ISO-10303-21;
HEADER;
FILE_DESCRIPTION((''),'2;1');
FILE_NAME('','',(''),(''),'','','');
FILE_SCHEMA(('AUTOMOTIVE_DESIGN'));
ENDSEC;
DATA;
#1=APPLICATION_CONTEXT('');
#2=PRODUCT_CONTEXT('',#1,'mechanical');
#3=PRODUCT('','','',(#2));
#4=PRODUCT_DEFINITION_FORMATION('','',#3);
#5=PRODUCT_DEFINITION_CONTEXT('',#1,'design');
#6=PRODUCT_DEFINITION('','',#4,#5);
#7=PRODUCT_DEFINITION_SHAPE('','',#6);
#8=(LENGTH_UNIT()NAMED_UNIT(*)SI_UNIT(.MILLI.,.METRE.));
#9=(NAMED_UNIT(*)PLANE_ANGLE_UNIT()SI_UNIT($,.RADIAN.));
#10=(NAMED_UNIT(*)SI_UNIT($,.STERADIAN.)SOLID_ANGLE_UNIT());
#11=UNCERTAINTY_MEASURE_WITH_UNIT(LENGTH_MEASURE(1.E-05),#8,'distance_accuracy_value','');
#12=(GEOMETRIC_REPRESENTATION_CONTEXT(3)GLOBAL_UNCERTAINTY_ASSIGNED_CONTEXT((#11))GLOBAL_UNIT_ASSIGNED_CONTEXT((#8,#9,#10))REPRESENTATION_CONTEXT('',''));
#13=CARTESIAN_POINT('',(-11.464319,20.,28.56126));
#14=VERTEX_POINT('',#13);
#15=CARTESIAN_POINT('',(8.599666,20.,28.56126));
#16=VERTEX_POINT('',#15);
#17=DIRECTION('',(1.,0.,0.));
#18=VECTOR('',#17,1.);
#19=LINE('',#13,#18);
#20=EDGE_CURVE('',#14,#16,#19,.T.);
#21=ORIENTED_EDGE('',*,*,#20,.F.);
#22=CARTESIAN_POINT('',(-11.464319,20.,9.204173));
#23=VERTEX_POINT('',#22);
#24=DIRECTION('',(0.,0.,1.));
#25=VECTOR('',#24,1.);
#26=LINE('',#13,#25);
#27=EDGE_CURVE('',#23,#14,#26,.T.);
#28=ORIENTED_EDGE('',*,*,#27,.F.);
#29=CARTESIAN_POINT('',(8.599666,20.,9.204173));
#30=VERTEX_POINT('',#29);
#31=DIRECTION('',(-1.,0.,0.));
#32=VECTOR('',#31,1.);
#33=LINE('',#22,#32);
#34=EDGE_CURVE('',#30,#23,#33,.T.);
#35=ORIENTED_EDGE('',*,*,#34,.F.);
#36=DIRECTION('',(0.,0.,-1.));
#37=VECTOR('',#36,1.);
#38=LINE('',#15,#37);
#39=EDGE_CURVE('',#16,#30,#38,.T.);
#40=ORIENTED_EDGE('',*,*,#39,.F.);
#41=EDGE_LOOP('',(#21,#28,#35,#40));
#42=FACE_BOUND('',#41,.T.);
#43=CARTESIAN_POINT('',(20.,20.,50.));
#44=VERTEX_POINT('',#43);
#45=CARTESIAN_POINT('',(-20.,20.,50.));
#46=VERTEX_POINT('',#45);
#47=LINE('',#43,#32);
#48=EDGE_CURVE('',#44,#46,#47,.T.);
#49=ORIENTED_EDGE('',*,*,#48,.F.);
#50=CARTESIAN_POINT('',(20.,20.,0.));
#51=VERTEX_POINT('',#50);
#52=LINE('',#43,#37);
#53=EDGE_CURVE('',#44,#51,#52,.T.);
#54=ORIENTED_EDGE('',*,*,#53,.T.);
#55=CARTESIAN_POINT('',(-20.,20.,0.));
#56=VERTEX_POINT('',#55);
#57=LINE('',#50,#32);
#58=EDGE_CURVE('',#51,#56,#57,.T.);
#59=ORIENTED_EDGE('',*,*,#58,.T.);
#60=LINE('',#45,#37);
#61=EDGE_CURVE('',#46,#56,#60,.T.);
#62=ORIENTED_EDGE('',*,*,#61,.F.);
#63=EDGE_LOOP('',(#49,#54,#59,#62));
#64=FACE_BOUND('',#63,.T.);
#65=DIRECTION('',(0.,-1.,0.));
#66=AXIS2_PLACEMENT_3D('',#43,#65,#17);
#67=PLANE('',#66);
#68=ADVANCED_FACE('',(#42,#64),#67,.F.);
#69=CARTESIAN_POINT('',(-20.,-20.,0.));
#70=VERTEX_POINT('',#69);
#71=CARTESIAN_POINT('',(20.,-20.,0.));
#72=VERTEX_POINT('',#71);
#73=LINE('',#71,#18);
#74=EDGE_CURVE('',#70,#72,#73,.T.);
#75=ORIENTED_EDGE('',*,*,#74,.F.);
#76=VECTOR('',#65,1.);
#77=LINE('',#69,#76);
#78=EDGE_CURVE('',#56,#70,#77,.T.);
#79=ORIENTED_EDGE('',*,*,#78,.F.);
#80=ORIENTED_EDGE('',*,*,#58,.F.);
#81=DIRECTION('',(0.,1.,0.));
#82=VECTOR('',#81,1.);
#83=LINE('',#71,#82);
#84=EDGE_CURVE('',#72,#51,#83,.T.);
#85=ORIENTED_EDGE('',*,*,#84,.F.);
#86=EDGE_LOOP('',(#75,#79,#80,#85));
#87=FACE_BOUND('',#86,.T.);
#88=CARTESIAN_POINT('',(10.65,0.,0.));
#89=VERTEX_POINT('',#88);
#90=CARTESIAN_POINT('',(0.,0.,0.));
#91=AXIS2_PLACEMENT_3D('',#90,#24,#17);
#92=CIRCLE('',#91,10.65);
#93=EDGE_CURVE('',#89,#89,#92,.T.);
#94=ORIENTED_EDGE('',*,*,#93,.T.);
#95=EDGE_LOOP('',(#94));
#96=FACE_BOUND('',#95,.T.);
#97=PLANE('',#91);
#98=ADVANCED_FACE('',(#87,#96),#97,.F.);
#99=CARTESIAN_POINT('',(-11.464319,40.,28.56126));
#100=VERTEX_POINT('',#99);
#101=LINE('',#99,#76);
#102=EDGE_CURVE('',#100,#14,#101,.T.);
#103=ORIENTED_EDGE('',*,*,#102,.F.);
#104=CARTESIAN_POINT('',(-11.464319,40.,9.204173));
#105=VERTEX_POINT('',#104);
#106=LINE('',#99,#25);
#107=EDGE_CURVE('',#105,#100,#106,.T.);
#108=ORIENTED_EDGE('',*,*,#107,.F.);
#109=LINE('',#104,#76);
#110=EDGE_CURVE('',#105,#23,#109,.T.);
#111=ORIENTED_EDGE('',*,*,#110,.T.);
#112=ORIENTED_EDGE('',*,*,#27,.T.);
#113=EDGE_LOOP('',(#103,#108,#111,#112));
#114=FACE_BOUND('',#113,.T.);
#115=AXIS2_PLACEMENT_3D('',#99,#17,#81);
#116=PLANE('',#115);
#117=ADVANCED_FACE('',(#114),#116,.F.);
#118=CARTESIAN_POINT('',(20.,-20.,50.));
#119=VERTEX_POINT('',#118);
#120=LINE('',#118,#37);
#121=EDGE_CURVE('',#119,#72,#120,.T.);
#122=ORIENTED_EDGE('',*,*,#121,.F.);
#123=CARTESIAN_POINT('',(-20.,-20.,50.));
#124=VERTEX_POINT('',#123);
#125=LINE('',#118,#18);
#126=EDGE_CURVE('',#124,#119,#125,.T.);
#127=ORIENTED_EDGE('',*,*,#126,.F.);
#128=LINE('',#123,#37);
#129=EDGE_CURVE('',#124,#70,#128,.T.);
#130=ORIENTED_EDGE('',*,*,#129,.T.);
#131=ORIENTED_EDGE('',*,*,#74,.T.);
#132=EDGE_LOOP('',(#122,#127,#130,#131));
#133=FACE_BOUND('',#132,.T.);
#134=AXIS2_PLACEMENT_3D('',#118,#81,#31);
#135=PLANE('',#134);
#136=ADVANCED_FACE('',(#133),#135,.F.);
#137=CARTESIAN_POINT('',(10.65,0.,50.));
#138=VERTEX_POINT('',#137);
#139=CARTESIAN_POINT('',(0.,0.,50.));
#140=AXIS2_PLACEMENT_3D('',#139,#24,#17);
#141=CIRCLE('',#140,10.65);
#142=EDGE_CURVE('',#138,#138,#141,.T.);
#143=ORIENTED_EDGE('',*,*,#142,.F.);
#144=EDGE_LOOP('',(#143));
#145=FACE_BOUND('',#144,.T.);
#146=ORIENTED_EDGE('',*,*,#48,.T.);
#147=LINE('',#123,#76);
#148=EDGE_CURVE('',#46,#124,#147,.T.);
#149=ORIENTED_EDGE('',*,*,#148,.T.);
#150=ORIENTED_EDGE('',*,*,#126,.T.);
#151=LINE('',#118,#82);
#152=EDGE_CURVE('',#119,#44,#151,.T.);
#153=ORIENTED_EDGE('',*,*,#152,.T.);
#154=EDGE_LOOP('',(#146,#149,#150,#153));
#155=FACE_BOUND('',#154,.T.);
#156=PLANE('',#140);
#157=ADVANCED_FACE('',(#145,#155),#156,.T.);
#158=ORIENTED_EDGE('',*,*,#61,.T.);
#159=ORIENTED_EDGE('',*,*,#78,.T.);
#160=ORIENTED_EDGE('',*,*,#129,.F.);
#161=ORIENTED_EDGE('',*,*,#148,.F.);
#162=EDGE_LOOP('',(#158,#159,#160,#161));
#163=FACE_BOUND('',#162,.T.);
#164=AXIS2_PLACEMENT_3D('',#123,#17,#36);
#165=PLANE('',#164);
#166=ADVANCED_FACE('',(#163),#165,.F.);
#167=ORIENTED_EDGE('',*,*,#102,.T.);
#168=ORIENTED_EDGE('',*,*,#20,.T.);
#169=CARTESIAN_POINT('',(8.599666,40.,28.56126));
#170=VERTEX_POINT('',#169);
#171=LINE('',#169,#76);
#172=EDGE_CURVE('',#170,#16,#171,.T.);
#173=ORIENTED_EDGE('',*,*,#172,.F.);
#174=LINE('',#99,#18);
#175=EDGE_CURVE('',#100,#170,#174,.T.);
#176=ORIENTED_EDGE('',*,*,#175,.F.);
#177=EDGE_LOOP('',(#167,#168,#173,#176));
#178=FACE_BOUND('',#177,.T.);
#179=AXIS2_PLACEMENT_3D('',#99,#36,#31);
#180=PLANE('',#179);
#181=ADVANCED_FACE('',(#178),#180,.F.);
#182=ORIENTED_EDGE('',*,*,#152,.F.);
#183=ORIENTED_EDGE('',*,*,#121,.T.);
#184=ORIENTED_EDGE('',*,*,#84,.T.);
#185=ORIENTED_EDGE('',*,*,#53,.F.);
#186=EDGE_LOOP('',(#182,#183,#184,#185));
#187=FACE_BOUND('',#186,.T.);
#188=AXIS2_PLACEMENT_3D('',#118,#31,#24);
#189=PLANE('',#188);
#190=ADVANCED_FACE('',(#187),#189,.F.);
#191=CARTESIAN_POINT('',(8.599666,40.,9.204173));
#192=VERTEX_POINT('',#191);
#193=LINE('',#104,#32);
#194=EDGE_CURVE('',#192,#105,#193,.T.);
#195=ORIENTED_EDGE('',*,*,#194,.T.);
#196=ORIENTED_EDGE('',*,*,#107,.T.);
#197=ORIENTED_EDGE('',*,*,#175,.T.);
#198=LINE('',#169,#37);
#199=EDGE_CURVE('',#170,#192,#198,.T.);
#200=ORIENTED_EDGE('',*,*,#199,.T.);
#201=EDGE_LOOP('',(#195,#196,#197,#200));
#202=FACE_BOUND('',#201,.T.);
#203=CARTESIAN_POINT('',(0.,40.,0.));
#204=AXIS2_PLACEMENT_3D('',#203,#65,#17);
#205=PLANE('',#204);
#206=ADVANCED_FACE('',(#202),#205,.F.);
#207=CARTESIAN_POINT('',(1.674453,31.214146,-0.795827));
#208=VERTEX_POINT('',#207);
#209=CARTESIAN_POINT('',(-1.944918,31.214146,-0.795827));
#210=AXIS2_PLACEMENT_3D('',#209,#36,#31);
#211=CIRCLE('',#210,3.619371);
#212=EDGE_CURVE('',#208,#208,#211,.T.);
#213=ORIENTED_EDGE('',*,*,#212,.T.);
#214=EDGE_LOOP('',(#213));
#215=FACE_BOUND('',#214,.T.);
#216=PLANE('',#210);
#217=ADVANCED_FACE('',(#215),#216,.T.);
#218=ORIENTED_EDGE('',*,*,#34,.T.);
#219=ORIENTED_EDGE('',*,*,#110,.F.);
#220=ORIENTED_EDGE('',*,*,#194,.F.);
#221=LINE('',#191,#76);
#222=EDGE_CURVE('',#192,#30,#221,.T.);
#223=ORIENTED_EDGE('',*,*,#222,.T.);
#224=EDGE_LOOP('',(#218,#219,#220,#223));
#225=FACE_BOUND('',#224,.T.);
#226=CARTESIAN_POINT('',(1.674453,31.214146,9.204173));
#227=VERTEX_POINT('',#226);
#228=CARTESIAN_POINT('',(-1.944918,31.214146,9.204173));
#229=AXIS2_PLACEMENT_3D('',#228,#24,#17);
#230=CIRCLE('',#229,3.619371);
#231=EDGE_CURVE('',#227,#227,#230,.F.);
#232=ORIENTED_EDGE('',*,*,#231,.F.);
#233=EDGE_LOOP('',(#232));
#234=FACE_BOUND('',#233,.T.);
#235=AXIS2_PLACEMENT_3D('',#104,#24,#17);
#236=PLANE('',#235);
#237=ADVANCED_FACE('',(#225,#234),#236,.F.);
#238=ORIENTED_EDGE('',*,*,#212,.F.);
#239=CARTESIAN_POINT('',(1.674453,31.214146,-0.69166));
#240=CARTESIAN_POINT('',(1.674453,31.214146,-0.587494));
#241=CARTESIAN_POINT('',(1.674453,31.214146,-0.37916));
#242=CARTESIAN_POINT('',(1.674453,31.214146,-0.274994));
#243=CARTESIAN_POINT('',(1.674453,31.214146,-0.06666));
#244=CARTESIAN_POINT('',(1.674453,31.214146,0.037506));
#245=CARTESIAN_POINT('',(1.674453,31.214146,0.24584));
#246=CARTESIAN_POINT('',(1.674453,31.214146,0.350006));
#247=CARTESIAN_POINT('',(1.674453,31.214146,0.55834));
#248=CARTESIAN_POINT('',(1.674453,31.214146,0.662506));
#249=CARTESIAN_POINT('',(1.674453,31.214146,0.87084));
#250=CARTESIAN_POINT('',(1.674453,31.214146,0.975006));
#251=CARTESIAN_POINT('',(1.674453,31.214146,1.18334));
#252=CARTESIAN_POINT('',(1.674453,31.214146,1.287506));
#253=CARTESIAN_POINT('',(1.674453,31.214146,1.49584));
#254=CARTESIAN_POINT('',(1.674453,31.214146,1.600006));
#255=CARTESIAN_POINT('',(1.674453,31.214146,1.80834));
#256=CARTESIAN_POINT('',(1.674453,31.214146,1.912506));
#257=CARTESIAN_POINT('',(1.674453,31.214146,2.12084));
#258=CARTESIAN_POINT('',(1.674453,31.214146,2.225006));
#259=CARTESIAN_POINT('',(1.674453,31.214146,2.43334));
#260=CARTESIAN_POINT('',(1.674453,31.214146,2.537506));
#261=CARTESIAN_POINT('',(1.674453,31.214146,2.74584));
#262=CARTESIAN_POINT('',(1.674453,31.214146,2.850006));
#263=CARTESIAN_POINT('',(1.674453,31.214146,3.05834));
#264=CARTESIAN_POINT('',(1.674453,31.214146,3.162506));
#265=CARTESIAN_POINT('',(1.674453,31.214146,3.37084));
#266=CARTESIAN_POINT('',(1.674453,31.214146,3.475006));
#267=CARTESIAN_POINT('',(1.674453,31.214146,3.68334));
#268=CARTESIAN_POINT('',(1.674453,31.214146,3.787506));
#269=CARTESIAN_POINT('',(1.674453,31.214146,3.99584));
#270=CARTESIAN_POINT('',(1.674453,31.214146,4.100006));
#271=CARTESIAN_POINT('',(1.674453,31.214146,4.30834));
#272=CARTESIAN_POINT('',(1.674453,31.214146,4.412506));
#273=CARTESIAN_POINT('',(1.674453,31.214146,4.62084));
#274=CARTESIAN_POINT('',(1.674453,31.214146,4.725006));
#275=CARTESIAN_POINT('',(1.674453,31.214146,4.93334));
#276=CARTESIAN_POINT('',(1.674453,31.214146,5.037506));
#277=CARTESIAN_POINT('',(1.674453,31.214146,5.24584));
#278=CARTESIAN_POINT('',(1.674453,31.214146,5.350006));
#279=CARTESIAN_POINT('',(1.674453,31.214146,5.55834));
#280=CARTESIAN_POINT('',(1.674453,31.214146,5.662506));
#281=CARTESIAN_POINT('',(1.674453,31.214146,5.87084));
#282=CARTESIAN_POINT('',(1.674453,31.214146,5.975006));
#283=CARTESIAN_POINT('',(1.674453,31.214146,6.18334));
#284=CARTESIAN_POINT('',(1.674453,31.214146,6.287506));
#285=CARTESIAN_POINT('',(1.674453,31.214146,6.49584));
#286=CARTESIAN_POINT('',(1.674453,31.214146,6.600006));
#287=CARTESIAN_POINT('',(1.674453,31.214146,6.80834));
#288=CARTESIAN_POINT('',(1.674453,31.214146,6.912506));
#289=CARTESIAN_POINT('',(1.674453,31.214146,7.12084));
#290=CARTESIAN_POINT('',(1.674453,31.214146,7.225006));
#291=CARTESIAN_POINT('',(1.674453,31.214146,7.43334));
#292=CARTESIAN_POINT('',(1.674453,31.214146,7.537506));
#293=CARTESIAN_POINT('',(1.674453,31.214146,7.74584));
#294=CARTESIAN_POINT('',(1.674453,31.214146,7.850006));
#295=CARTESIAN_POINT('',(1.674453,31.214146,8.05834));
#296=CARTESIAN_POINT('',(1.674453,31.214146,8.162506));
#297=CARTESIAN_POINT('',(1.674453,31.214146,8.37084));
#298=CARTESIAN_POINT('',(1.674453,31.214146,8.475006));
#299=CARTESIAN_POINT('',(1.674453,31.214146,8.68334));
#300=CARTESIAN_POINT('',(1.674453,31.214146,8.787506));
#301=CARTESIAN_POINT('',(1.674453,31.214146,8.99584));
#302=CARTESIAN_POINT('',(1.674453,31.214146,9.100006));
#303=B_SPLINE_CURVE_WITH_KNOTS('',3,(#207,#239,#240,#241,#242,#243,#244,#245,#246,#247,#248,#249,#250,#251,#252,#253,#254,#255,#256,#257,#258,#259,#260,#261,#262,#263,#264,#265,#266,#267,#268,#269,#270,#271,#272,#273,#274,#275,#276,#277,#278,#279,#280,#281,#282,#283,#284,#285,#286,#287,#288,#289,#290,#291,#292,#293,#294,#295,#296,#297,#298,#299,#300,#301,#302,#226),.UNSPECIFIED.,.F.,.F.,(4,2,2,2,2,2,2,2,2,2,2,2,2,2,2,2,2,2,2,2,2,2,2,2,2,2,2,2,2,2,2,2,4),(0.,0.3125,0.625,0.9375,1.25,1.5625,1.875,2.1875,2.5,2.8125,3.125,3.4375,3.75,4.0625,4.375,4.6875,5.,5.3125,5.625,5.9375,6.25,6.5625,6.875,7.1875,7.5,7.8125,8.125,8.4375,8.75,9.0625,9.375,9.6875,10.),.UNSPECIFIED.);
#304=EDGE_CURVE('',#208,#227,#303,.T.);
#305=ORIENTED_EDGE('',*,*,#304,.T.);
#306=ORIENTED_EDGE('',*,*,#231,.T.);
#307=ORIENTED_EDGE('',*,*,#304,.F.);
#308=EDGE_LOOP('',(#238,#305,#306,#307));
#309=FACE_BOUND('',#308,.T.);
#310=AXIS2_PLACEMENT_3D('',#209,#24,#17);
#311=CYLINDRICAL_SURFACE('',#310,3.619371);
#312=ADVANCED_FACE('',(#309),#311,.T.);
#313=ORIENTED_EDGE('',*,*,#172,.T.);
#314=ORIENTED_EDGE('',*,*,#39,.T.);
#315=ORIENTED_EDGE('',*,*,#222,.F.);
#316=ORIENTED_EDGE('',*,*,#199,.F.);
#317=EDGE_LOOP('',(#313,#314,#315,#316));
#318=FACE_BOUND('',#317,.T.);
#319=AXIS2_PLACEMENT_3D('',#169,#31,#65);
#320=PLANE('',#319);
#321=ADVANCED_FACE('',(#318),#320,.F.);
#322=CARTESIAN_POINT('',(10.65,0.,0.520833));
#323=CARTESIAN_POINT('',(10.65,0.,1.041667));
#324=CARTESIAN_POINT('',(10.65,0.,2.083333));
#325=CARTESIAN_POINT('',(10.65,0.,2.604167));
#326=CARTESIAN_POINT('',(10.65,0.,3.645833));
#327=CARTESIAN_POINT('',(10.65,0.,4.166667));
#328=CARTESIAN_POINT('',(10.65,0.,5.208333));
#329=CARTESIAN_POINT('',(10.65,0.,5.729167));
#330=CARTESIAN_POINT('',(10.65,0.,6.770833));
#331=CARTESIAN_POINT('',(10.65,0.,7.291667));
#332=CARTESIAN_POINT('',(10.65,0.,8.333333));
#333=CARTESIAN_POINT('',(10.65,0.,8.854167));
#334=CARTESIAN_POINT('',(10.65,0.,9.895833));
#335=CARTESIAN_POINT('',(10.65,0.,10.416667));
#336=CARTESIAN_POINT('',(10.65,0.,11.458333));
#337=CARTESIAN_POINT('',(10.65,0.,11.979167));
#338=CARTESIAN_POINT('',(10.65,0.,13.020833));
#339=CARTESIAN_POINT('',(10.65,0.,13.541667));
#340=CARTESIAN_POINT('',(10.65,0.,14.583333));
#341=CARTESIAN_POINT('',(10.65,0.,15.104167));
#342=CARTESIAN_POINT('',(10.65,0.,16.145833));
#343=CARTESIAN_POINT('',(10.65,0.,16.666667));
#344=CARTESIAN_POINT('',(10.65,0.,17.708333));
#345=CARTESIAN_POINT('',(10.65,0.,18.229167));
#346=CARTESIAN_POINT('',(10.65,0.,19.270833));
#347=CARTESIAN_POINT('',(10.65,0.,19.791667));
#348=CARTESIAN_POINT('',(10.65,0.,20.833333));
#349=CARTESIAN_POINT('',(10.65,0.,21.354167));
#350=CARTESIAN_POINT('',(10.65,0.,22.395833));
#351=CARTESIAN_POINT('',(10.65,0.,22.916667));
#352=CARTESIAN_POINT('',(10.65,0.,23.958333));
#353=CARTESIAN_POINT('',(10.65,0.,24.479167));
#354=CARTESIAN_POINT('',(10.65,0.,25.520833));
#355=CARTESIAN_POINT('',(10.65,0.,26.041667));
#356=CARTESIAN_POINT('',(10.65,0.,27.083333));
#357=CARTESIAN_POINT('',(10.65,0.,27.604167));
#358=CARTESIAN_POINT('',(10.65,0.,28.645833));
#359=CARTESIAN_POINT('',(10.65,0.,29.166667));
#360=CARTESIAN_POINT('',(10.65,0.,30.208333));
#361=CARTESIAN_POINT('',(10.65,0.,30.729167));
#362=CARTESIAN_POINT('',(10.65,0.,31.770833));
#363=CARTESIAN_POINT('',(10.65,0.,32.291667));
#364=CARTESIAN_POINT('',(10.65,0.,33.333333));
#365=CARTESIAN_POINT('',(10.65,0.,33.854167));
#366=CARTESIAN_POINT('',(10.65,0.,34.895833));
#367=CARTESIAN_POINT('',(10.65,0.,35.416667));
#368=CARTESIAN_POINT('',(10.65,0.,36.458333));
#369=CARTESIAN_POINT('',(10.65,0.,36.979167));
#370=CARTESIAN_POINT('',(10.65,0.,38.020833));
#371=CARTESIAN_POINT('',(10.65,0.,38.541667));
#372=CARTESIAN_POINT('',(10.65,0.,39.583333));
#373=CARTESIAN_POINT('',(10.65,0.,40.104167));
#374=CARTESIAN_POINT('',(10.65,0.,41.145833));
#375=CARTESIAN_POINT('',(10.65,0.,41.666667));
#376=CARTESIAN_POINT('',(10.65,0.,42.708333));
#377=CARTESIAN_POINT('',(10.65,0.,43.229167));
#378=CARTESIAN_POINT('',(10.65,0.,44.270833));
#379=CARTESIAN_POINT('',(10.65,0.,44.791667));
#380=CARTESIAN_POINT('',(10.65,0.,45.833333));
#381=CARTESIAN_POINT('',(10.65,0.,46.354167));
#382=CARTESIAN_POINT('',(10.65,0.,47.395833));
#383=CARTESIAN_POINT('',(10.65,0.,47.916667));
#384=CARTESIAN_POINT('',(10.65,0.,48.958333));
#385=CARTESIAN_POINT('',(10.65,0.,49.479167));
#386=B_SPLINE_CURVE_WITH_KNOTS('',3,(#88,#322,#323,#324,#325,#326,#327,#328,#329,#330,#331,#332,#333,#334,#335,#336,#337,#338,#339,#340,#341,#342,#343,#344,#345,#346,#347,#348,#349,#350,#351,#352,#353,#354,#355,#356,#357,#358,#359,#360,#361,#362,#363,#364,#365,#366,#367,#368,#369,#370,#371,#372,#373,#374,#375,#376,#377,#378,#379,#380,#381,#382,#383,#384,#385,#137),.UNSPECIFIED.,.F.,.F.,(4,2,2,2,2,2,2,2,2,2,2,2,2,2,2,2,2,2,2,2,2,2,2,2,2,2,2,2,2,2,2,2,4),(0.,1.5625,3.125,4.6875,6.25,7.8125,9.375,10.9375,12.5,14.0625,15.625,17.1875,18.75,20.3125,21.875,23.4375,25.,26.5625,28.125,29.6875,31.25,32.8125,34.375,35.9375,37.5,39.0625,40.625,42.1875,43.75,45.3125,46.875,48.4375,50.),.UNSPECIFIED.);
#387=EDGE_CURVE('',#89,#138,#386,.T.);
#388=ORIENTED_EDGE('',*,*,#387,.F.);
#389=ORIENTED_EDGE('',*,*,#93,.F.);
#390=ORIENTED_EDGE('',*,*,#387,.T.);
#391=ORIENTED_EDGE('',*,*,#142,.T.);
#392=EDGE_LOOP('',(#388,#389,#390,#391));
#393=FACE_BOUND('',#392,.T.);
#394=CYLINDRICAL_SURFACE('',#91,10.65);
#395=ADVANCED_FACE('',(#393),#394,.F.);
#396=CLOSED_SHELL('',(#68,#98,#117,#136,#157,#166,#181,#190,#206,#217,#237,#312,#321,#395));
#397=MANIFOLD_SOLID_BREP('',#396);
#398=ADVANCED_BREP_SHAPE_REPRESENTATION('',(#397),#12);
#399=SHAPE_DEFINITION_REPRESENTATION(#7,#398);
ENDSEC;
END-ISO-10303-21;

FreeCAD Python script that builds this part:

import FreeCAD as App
import Part
import Sketcher

V = App.Vector
Q = App.Units.Quantity


def add_polygon(sketch, points):
    """Adds a closed chain of lines whose ends are joined by coincident constraints."""
    first, n = sketch.GeometryCount, len(points)
    for a, b in zip(points, points[1:] + points[:1]):
        sketch.addGeometry(Part.LineSegment(App.Vector(*a, 0), App.Vector(*b, 0)), False)
    for i in range(n):
        sketch.addConstraint(Sketcher.Constraint("Coincident", first + i, 2, first + (i + 1) % n, 1))

doc = App.newDocument("Part")
body = doc.addObject("PartDesign::Body", "Body")

# Sketch on XY plane
sketch1 = body.newObject("Sketcher::SketchObject", "Sketch")
sketch1.AttachmentSupport = (doc.getObject("XY_Plane"), [""])
sketch1.MapMode = "FlatFace"
add_polygon(sketch1, [(-20, 20), (-20, -20), (20, -20), (20, 20)])  # lines 0-3
sketch1.addConstraint(Sketcher.Constraint("Vertical", 0))
sketch1.addConstraint(Sketcher.Constraint("Horizontal", 1))
sketch1.addConstraint(Sketcher.Constraint("Vertical", 2))
sketch1.addConstraint(Sketcher.Constraint("Horizontal", 3))
sketch1.addConstraint(Sketcher.Constraint("Symmetric", 0, 2, 2, 2, -1, 1))
sketch1.addConstraint(Sketcher.Constraint("Equal", 3, 0))
sketch1.addConstraint(Sketcher.Constraint("DistanceX", 1, 1, 1, 2, Q("40 mm")))
pad1 = body.newObject("PartDesign::Pad", "Pad")
pad1.Profile = sketch1
pad1.Length = 50

# Sketch on XY plane
sketch2 = body.newObject("Sketcher::SketchObject", "Sketch001")
sketch2.AttachmentSupport = (doc.getObject("XY_Plane"), [""])
sketch2.MapMode = "FlatFace"
sketch2.AttachmentOffset = App.Placement(V(0, 0, 50), App.Rotation())
sketch2.addGeometry(Part.Circle(V(0, 0, 0), V(0, 0, 1), 11), False)
sketch2.addConstraint(Sketcher.Constraint("Coincident", 0, 3, -1, 1))
sketch2.addConstraint(Sketcher.Constraint("Diameter", 0, Q("21.3 mm")))
pocket1 = body.newObject("PartDesign::Pocket", "Pocket")
pocket1.Profile = sketch2
pocket1.Type = "ThroughAll"

# Sketch on XZ plane
sketch3 = body.newObject("Sketcher::SketchObject", "Sketch002")
sketch3.AttachmentSupport = (doc.getObject("XZ_Plane"), [""])
sketch3.MapMode = "FlatFace"
sketch3.AttachmentOffset = App.Placement(V(0, 0, -20), App.Rotation())
add_polygon(sketch3, [(-11, 9), (-11, 29), (9, 29), (9, 9)])  # lines 0-3
sketch3.addConstraint(Sketcher.Constraint("Vertical", 0))
sketch3.addConstraint(Sketcher.Constraint("Horizontal", 1))
sketch3.addConstraint(Sketcher.Constraint("Vertical", 2))
sketch3.addConstraint(Sketcher.Constraint("Horizontal", 3))
sketch3.addConstraint(Sketcher.Constraint("DistanceX", 1, 1, 1, 2, Q("20.063985 mm")))
sketch3.addConstraint(Sketcher.Constraint("DistanceY", 0, 1, 0, 2, Q("19.357087 mm")))
sketch3.addConstraint(Sketcher.Constraint("DistanceX", 0, 2, -1, 1, Q("11.464319 mm")))
sketch3.addConstraint(Sketcher.Constraint("DistanceY", -1, 1, 0, 2, Q("28.56126 mm")))
pad2 = body.newObject("PartDesign::Pad", "Pad001")
pad2.Profile = sketch3
pad2.Length = 20
pad2.Reversed = True

# Sketch on XY plane
sketch4 = body.newObject("Sketcher::SketchObject", "Sketch003")
sketch4.AttachmentSupport = (doc.getObject("XY_Plane"), [""])
sketch4.MapMode = "FlatFace"
sketch4.AttachmentOffset = App.Placement(V(0, 0, 9.204173), App.Rotation())
sketch4.addGeometry(Part.Circle(V(-1.9, 31.2, 0), V(0, 0, 1), 3.6), False)
sketch4.addConstraint(Sketcher.Constraint("Diameter", 0, Q("7.238742 mm")))
sketch4.addConstraint(Sketcher.Constraint("DistanceX", 0, 3, -1, 1, Q("1.944918 mm")))
sketch4.addConstraint(Sketcher.Constraint("DistanceY", -1, 1, 0, 3, Q("31.214146 mm")))
pad3 = body.newObject("PartDesign::Pad", "Pad002")
pad3.Profile = sketch4
pad3.Length = 10
pad3.Reversed = True

doc.recompute()
